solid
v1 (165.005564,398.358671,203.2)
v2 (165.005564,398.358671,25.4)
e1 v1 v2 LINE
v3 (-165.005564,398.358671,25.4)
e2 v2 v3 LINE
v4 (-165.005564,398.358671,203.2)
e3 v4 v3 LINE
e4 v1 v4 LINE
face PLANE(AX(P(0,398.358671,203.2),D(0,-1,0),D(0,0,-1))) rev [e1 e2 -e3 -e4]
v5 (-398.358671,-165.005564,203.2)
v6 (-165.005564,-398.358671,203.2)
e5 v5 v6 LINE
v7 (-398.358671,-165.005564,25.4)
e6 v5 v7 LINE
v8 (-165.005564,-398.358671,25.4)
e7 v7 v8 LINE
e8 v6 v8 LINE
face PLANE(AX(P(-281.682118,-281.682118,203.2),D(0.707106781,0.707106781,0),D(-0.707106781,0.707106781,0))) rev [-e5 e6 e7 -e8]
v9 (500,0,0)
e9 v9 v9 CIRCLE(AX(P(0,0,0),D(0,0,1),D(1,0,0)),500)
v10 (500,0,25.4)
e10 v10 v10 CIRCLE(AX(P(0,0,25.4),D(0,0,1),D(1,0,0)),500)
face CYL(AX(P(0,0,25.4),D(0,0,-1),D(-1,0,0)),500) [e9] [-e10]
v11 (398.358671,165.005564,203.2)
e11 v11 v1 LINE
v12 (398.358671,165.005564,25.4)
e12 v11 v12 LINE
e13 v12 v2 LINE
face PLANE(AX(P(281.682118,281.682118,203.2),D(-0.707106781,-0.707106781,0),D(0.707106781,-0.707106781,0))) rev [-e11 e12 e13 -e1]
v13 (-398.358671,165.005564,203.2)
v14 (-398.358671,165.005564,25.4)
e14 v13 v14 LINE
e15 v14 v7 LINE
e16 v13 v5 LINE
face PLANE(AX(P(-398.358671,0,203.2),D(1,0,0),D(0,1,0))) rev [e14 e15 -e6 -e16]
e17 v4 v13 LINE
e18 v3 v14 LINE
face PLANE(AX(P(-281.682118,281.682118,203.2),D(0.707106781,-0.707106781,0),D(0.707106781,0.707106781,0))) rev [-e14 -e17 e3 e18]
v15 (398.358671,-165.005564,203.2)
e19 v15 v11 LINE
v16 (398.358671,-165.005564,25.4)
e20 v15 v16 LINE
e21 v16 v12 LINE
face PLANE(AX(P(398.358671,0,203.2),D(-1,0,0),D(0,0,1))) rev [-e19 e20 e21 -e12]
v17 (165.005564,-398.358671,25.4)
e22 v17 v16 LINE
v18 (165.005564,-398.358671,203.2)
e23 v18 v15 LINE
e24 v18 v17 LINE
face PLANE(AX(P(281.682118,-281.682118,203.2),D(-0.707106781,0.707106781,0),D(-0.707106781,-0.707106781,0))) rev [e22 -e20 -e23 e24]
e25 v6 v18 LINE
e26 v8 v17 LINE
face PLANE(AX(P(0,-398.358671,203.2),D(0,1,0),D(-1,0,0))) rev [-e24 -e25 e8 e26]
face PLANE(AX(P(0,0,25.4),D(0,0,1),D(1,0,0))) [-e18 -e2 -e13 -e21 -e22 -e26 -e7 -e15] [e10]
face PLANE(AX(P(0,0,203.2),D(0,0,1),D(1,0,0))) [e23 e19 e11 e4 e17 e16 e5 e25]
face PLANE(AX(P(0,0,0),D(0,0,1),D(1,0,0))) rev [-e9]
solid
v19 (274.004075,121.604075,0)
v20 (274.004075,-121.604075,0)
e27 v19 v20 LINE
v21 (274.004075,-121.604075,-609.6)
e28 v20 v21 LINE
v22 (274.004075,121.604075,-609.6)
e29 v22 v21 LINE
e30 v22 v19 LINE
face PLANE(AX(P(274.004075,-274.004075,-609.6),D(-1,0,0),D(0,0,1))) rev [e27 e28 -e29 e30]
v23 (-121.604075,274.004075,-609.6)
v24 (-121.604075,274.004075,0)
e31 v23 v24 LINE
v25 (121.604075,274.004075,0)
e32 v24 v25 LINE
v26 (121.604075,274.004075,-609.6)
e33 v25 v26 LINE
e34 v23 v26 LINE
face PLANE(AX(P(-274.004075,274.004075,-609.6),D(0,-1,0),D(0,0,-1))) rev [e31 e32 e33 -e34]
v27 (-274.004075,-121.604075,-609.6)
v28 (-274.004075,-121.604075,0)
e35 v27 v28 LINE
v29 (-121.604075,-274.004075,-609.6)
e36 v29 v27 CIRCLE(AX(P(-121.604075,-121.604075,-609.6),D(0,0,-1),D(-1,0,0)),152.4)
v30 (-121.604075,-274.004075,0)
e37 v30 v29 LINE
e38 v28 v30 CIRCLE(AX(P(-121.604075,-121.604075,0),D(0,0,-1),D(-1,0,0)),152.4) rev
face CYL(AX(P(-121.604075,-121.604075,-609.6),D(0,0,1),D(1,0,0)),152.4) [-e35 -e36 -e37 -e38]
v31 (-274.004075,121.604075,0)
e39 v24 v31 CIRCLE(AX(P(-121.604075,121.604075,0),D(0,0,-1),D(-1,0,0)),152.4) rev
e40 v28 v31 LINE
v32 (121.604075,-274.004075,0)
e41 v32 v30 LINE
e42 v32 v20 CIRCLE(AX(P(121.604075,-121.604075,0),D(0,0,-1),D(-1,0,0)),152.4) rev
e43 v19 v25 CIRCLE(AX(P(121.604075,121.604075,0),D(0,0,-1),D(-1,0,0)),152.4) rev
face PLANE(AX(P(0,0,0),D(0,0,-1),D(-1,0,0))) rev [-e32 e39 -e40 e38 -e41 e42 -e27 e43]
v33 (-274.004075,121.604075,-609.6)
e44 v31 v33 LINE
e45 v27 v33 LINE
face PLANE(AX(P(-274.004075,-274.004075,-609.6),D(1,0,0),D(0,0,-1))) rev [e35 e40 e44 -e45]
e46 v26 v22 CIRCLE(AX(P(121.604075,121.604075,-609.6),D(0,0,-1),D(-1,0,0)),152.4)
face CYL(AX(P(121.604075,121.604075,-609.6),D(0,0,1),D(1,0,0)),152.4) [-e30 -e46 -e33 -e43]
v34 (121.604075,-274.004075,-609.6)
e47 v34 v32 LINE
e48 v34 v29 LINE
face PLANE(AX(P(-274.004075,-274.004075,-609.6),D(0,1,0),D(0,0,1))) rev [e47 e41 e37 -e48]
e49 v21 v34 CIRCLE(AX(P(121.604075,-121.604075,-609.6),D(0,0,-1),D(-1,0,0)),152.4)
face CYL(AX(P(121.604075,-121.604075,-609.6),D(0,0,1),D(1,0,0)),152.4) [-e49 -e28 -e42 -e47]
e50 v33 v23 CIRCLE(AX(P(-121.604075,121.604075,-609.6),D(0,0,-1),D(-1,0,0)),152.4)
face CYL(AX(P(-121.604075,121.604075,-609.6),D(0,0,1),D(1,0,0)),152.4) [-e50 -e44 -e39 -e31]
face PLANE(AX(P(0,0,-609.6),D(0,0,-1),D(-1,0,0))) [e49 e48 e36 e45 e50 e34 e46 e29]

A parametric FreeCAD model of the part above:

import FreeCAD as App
import Part
import Sketcher

V = App.Vector
Q = App.Units.Quantity


def edges_at(feature, points):
    """Names of the edges that pass closest to the given points."""
    edges = feature.Shape.Edges
    near = lambda p: min(range(len(edges)), key=lambda i: edges[i].distToShape(Part.Vertex(*p))[0])
    return sorted({f"Edge{near(p) + 1}" for p in points})


def add_polygon(sketch, points):
    """Adds a closed chain of lines whose ends are joined by coincident constraints."""
    first, n = sketch.GeometryCount, len(points)
    for a, b in zip(points, points[1:] + points[:1]):
        sketch.addGeometry(Part.LineSegment(App.Vector(*a, 0), App.Vector(*b, 0)), False)
    for i in range(n):
        sketch.addConstraint(Sketcher.Constraint("Coincident", first + i, 2, first + (i + 1) % n, 1))

doc = App.newDocument("Part")
body = doc.addObject("PartDesign::Body", "Body")

# Sketch on XY plane
sketch1 = doc.addObject("Sketcher::SketchObject", "Sketch")
body.addObject(sketch1)
sketch1.AttachmentSupport = (doc.XY_Plane, [""])
sketch1.MapMode = "FlatFace"
add_polygon(sketch1, [(398, -165), (398, 165), (165, 398), (-165, 398), (-398, 165), (-398, -165), (-165, -398), (165, -398)])  # lines 0-7
sketch1.addConstraint(Sketcher.Constraint("Vertical", 0))
sketch1.addConstraint(Sketcher.Constraint("Horizontal", 2))
sketch1.addConstraint(Sketcher.Constraint("Vertical", 4))
sketch1.addConstraint(Sketcher.Constraint("Horizontal", 6))
sketch1.addConstraint(Sketcher.Constraint("Symmetric", 0, 2, 4, 2, -1, 1))
sketch1.addConstraint(Sketcher.Constraint("Symmetric", 1, 2, 5, 2, -1, 1))
sketch1.addConstraint(Sketcher.Constraint("Perpendicular", 1, 3))
sketch1.addConstraint(Sketcher.Constraint("Perpendicular", 5, 7))
sketch1.addConstraint(Sketcher.Constraint("Horizontal", 0, 2, 3, 2))
sketch1.addConstraint(Sketcher.Constraint("Horizontal", 4, 2, 7, 2))
sketch1.addConstraint(Sketcher.Constraint("Vertical", 2, 2, 5, 2))
sketch1.addConstraint(Sketcher.Constraint("Equal", 6, 0))
sketch1.addConstraint(Sketcher.Constraint("DistanceX", 2, 2, 2, 1, 330.011129))
sketch1.addConstraint(Sketcher.Constraint("Distance", 1, 330.011129))
pad1 = doc.addObject("PartDesign::Pad", "Pad")
body.addObject(pad1)
pad1.Profile = sketch1
pad1.Length = Q("8 in")

# Sketch on XY plane
sketch2 = doc.addObject("Sketcher::SketchObject", "Sketch001")
body.addObject(sketch2)
sketch2.AttachmentSupport = (doc.XY_Plane, [""])
sketch2.MapMode = "FlatFace"
sketch2.addGeometry(Part.Circle(V(0, 0, 0), V(0, 0, 1), 500), False)  # 0
add_polygon(sketch2, [(-165, 398), (165, 398), (398, 165), (398, -165), (165, -398), (-165, -398), (-398, -165), (-398, 165)])  # lines 1-8
sketch2.addConstraint(Sketcher.Constraint("Horizontal", 1))
sketch2.addConstraint(Sketcher.Constraint("Vertical", 3))
sketch2.addConstraint(Sketcher.Constraint("Horizontal", 5))
sketch2.addConstraint(Sketcher.Constraint("Vertical", 7))
sketch2.addConstraint(Sketcher.Constraint("Coincident", 0, 3, -1, 1))
sketch2.addConstraint(Sketcher.Constraint("Symmetric", 1, 2, 5, 2, -1, 1))
sketch2.addConstraint(Sketcher.Constraint("Symmetric", 2, 2, 6, 2, -1, 1))
sketch2.addConstraint(Sketcher.Constraint("Perpendicular", 2, 4))
sketch2.addConstraint(Sketcher.Constraint("Perpendicular", 6, 8))
sketch2.addConstraint(Sketcher.Constraint("Horizontal", 3, 2, 6, 2))
sketch2.addConstraint(Sketcher.Constraint("Horizontal", 2, 2, 7, 2))
sketch2.addConstraint(Sketcher.Constraint("Vertical", 1, 2, 4, 2))
sketch2.addConstraint(Sketcher.Constraint("Equal", 5, 3))
sketch2.addConstraint(Sketcher.Constraint("Diameter", 0, 1000.0))
sketch2.addConstraint(Sketcher.Constraint("DistanceX", 1, 1, 1, 2, 330.011129))
sketch2.addConstraint(Sketcher.Constraint("Distance", 2, 330.011129))
pad2 = doc.addObject("PartDesign::Pad", "Pad001")
body.addObject(pad2)
pad2.Profile = sketch2
pad2.Length = Q("1 in")
body2 = doc.addObject("PartDesign::Body", "Body001")

# Sketch on XY plane
sketch3 = doc.addObject("Sketcher::SketchObject", "Sketch002")
body2.addObject(sketch3)
sketch3.AttachmentSupport = (doc.getObject("XY_Plane001"), [""])
sketch3.MapMode = "FlatFace"
add_polygon(sketch3, [(274, 274), (274, -274), (-274, -274), (-274, 274)])  # lines 0-3
sketch3.addConstraint(Sketcher.Constraint("Vertical", 0))
sketch3.addConstraint(Sketcher.Constraint("Horizontal", 1))
sketch3.addConstraint(Sketcher.Constraint("Vertical", 2))
sketch3.addConstraint(Sketcher.Constraint("Horizontal", 3))
sketch3.addConstraint(Sketcher.Constraint("Symmetric", 0, 2, 2, 2, -1, 1))
sketch3.addConstraint(Sketcher.Constraint("Equal", 3, 0))
sketch3.addConstraint(Sketcher.Constraint("DistanceX", 1, 2, 1, 1, 548.00815))
pad3 = doc.addObject("PartDesign::Pad", "Pad002")
body2.addObject(pad3)
pad3.Profile = sketch3
pad3.Length = Q("24 in")
pad3.Reversed = True
doc.recompute()

fillet = doc.addObject("PartDesign::Fillet", "Fillet")
body2.addObject(fillet)
fillet.Base = (pad3, edges_at(pad3, [
    (274.004, 274.004, -304.8),
    (-274.004, 274.004, -304.8),
    (-274.004, -274.004, -304.8),
    (274.004, -274.004, -304.8),
]))
fillet.Radius = Q("6 in")

doc.recompute()
